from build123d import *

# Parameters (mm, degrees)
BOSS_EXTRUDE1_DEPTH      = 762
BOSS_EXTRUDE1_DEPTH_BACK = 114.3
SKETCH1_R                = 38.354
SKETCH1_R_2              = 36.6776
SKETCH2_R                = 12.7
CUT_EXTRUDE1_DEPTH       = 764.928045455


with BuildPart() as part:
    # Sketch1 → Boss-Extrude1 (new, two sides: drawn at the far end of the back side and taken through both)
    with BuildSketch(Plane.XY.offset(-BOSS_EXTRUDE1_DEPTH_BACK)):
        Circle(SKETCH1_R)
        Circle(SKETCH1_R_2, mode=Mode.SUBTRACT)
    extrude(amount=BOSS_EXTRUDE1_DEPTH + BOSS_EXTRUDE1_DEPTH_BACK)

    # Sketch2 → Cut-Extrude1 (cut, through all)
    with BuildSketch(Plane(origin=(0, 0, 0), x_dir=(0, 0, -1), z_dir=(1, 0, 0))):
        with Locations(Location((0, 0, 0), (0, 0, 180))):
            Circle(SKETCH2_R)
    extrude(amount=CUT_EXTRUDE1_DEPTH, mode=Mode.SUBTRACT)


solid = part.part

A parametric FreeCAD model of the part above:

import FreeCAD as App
import Part
import Sketcher

V = App.Vector
Q = App.Units.Quantity

doc = App.newDocument("Part")
body = doc.addObject("PartDesign::Body", "Body")

# Sketch on XY plane
sketch1 = body.newObject("Sketcher::SketchObject", "Sketch")
sketch1.AttachmentSupport = (doc.getObject("XY_Plane"), [""])
sketch1.MapMode = "FlatFace"
sketch1.addGeometry([
    Part.Circle(V(0, 0, 0), V(0, 0, 1), 38),
    Part.Circle(V(0, 0, 0), V(0, 0, 1), 37),
], False)
sketch1.addConstraint([
    Sketcher.Constraint("Coincident", 0, 3, -1, 1),
    Sketcher.Constraint("Coincident", 1, 3, -1, 1),
    Sketcher.Constraint("Diameter", 0, Q("3.02 in")),
    Sketcher.Constraint("Diameter", 1, Q("2.888 in")),
])
pad1 = body.newObject("PartDesign::Pad", "Pad")
pad1.Profile = sketch1
pad1.Type = "TwoLengths"
pad1.Length = Q("30 in")
pad1.Length2 = Q("4.5 in")

# Sketch on YZ plane
sketch2 = body.newObject("Sketcher::SketchObject", "Sketch001")
sketch2.AttachmentSupport = (doc.getObject("YZ_Plane"), [""])
sketch2.MapMode = "FlatFace"
sketch2.addGeometry(Part.Circle(V(0, 0, 0), V(0, 0, 1), 13), False)
sketch2.addConstraint([
    Sketcher.Constraint("Coincident", 0, 3, -1, 1),
    Sketcher.Constraint("Diameter", 0, Q("1 in")),
])
pocket1 = body.newObject("PartDesign::Pocket", "Pocket")
pocket1.Profile = sketch2
pocket1.Type = "ThroughAll"
pocket1.Reversed = True

doc.recompute()
